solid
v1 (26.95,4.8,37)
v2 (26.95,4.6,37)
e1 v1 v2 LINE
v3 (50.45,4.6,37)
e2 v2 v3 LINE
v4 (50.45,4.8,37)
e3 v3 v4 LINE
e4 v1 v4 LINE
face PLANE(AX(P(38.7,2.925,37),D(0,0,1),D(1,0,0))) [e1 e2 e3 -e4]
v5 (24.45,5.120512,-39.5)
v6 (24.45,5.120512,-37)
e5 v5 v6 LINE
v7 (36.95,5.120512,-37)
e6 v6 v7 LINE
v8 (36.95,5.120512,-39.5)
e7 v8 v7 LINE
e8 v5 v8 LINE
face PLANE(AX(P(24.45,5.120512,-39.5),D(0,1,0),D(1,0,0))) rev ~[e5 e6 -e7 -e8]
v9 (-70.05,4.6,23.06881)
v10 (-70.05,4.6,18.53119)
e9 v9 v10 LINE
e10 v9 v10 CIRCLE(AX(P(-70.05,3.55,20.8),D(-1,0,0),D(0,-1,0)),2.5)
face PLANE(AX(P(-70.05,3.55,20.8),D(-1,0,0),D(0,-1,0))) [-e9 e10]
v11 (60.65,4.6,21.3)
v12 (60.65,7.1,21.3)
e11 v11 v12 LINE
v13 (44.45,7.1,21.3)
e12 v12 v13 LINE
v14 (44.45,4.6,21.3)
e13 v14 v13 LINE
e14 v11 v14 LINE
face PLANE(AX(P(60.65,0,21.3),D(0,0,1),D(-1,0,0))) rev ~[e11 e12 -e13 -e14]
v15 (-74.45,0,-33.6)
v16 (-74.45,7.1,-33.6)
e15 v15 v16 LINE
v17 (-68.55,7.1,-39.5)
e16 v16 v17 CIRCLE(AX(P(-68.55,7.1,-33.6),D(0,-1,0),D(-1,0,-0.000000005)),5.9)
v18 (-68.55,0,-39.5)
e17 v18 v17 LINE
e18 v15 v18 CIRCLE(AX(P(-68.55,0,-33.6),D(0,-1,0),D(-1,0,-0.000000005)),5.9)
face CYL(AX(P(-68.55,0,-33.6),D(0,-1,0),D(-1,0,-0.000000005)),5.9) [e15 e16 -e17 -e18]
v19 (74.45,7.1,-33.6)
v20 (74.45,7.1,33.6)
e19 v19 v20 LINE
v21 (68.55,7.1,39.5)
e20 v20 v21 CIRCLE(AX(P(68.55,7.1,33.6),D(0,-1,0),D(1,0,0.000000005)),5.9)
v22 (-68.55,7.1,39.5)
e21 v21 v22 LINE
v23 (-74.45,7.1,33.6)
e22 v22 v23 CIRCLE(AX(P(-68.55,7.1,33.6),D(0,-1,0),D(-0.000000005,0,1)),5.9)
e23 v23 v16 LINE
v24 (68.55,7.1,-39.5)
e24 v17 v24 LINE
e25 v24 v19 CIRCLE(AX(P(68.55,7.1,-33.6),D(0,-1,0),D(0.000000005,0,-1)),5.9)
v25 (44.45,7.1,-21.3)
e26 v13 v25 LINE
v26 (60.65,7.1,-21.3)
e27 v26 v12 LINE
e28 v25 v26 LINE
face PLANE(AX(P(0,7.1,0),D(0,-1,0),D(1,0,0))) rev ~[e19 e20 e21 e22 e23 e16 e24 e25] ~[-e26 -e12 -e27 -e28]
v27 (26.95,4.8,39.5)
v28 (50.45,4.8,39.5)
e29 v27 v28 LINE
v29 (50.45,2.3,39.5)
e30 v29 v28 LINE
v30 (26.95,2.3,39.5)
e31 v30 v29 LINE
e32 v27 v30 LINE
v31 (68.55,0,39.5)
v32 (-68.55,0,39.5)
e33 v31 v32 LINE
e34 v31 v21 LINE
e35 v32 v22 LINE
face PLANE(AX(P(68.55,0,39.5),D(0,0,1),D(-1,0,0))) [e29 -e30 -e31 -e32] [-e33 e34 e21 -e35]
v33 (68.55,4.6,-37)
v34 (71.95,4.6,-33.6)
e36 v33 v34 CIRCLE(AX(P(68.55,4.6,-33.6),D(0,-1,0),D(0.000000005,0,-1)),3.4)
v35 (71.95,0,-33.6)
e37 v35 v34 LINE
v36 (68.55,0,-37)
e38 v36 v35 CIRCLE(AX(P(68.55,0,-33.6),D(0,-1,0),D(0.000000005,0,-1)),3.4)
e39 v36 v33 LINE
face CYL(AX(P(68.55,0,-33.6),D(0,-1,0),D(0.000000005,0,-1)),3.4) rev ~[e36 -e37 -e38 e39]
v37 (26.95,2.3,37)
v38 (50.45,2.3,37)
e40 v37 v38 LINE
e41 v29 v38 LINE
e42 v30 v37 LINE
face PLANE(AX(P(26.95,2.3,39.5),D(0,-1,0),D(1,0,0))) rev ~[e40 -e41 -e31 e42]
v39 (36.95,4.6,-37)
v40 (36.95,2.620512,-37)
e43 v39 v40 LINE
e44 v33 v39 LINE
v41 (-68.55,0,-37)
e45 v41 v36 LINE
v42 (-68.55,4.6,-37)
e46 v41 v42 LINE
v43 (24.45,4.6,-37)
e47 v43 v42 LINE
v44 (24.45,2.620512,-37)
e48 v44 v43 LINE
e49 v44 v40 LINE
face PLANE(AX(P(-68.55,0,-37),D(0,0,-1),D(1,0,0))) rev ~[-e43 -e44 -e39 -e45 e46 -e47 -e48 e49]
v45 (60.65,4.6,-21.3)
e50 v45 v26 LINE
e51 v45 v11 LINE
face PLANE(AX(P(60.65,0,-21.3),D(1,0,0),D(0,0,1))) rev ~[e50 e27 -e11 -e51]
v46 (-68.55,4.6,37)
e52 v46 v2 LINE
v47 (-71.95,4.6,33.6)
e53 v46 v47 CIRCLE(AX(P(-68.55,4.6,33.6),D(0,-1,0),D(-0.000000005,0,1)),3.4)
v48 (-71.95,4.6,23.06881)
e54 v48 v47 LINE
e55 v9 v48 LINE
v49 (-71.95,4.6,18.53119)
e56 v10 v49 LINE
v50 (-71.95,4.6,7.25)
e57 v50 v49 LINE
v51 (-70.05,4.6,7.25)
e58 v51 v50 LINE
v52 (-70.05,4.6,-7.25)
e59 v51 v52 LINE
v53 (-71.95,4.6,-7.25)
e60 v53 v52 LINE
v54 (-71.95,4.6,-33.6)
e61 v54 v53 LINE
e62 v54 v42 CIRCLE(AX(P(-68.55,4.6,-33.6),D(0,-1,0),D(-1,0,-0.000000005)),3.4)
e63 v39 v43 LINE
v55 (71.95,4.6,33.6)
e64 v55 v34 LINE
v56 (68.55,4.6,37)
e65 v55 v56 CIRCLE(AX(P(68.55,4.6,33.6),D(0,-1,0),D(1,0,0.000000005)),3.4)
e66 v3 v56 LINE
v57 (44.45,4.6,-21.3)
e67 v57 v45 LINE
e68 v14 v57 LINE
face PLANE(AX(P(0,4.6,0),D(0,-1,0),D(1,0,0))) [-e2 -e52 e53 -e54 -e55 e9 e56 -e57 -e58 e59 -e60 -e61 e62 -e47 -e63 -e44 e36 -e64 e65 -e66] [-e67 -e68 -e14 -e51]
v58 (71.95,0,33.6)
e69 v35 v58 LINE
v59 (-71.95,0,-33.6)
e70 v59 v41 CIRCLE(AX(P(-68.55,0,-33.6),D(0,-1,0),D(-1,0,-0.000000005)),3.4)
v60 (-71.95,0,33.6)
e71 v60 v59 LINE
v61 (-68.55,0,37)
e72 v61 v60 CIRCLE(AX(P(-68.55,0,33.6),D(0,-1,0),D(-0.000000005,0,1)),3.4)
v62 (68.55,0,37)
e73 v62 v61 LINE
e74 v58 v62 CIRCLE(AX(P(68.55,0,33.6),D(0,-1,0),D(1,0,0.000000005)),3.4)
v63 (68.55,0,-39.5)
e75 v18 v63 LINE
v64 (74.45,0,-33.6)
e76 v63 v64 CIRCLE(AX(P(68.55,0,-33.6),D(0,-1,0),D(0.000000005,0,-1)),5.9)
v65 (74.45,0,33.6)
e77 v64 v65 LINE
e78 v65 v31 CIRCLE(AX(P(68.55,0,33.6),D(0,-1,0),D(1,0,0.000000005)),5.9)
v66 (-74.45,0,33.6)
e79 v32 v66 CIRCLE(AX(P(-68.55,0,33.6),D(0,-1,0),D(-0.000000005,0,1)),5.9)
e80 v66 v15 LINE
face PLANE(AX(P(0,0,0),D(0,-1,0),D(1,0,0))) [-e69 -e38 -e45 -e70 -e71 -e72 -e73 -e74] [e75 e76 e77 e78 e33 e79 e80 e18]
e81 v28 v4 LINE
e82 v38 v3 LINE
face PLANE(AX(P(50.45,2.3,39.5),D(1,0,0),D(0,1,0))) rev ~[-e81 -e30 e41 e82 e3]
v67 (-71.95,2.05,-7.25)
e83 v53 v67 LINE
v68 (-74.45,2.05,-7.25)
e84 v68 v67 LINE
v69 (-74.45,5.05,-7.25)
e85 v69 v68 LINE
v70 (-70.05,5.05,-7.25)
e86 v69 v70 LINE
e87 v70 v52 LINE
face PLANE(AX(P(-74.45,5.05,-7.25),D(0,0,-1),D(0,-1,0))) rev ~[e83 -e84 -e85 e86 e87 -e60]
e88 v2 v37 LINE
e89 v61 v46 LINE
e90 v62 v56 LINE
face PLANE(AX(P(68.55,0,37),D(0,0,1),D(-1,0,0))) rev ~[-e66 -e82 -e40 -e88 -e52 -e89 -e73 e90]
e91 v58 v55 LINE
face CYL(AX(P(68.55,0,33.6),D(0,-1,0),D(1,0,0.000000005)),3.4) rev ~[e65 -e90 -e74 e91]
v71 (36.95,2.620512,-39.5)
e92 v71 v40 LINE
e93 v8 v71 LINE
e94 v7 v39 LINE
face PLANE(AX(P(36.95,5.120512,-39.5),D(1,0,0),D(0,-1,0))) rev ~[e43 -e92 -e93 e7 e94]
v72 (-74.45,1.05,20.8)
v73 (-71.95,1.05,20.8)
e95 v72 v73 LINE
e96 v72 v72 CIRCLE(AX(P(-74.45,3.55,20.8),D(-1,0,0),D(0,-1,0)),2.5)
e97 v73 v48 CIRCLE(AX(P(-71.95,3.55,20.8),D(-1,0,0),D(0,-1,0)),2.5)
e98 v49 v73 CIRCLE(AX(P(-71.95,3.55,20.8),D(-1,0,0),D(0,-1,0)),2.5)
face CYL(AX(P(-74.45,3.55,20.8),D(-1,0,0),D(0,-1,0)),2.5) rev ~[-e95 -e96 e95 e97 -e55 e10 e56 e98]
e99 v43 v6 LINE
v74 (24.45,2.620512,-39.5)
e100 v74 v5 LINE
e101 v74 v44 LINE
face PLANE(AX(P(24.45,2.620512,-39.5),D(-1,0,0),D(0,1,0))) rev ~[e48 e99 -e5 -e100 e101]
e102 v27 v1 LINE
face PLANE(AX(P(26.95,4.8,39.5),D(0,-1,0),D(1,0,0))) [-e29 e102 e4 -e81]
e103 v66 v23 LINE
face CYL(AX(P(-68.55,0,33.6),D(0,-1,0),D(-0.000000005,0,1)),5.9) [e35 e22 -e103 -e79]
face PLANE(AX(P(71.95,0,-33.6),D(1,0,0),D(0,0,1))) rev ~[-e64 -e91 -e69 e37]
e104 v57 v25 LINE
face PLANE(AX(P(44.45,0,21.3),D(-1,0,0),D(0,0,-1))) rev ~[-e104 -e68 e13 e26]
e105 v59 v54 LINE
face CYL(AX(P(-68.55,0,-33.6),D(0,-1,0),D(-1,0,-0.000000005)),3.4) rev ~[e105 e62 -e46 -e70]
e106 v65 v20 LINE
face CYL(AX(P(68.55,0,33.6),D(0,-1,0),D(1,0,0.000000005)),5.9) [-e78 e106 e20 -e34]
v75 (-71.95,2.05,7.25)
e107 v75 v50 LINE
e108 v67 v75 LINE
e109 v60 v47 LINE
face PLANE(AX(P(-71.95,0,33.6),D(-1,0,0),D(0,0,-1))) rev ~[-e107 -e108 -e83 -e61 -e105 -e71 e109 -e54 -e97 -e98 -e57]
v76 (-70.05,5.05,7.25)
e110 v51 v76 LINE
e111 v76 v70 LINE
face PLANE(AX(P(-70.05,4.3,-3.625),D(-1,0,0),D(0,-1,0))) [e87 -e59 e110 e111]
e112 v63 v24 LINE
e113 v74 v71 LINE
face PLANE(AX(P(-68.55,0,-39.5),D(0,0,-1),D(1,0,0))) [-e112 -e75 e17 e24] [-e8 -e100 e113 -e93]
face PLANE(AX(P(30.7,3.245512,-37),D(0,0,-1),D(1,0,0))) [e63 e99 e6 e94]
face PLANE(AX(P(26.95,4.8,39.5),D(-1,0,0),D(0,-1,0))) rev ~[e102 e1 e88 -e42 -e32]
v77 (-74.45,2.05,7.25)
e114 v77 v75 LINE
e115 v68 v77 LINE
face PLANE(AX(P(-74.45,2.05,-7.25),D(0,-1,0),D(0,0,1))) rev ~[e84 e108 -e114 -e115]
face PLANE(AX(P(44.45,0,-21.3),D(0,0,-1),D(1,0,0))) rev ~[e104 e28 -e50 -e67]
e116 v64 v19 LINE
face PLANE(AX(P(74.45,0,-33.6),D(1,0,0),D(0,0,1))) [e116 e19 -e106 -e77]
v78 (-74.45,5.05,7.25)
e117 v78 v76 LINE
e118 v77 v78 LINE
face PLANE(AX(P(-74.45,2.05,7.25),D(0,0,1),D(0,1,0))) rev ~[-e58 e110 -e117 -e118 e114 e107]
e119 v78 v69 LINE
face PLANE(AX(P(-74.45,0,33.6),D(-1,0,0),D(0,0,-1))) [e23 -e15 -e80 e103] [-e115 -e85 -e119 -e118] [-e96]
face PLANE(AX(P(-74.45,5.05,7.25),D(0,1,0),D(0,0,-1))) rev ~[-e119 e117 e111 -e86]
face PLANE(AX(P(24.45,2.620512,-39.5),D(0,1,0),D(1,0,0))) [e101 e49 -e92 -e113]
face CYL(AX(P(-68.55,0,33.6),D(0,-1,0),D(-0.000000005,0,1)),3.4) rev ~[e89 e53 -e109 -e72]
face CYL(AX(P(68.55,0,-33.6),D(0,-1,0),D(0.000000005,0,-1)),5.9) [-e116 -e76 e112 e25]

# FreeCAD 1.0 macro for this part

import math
import FreeCAD as App
import Part
import Sketcher


def faces_at(feature, points):
    """Names of the faces that lie closest to the given points."""
    faces = feature.Shape.Faces
    near = lambda p: min(range(len(faces)), key=lambda i: faces[i].distToShape(Part.Vertex(*p))[0])
    return sorted({f"Face{near(p) + 1}" for p in points})


def add_polygon(sketch, points):
    """Adds a closed chain of lines whose ends are joined by coincident constraints."""
    first, n = sketch.GeometryCount, len(points)
    for a, b in zip(points, points[1:] + points[:1]):
        sketch.addGeometry(Part.LineSegment(App.Vector(*a, 0), App.Vector(*b, 0)), False)
    for i in range(n):
        sketch.addConstraint(Sketcher.Constraint("Coincident", first + i, 2, first + (i + 1) % n, 1))

doc = App.newDocument("Part")
body = doc.addObject("PartDesign::Body", "Body")

sketch1 = doc.addObject("Sketcher::SketchObject", "Sketch")
body.addObject(sketch1)
sketch1.AttachmentSupport = (doc.XZ_Plane, [""])
sketch1.MapMode = "FlatFace"
sketch1.addGeometry([
    Part.LineSegment(App.Vector(69, 40, 0), App.Vector(-69, 40, 0)),
    Part.ArcOfCircle(Part.Circle(App.Vector(-69, 34, 0), App.Vector(0, 0, 1), 6), math.radians(90), math.radians(180)),
    Part.LineSegment(App.Vector(-74, 34, 0), App.Vector(-74, -34, 0)),
    Part.ArcOfCircle(Part.Circle(App.Vector(-69, -34, 0), App.Vector(0, 0, 1), 6), math.radians(-180), math.radians(-90)),
    Part.LineSegment(App.Vector(-69, -40, 0), App.Vector(69, -40, 0)),
    Part.ArcOfCircle(Part.Circle(App.Vector(69, -34, 0), App.Vector(0, 0, 1), 6), math.radians(-90), math.radians(0)),
    Part.LineSegment(App.Vector(74, -34, 0), App.Vector(74, 34, 0)),
    Part.ArcOfCircle(Part.Circle(App.Vector(69, 34, 0), App.Vector(0, 0, 1), 6), math.radians(0), math.radians(90)),
], False)
sketch1.addConstraint([
    Sketcher.Constraint("Tangent", 0, 2, 1, 1),
    Sketcher.Constraint("Tangent", 1, 2, 2, 1),
    Sketcher.Constraint("Tangent", 2, 2, 3, 1),
    Sketcher.Constraint("Tangent", 3, 2, 4, 1),
    Sketcher.Constraint("Tangent", 4, 2, 5, 1),
    Sketcher.Constraint("Tangent", 5, 2, 6, 1),
    Sketcher.Constraint("Tangent", 6, 2, 7, 1),
    Sketcher.Constraint("Tangent", 7, 2, 0, 1),
    Sketcher.Constraint("Horizontal", 0),
    Sketcher.Constraint("Vertical", 2),
    Sketcher.Constraint("Horizontal", 4),
    Sketcher.Constraint("Vertical", 6),
    Sketcher.Constraint("Equal", 1, 3),
    Sketcher.Constraint("Equal", 3, 5),
    Sketcher.Constraint("Equal", 5, 7),
    Sketcher.Constraint("Symmetric", 1, 3, 5, 3, -1, 1),
    Sketcher.Constraint("Radius", 1, 5.9),
    Sketcher.Constraint("DistanceX", 0, 2, 0, 1, 137.1),
    Sketcher.Constraint("DistanceY", 2, 2, 2, 1, 67.2),
])
pad1 = doc.addObject("PartDesign::Pad", "Pad")
body.addObject(pad1)
pad1.Profile = sketch1
pad1.Length = 7.1
pad1.Reversed = True
doc.recompute()

thickness = doc.addObject("PartDesign::Thickness", "Thickness")
body.addObject(thickness)
thickness.Base = (pad1, faces_at(pad1, [(0, 0, 0)]))
thickness.Value = 2.5
thickness.Reversed = True
thickness.Join = "Arc"

sketch2 = doc.addObject("Sketcher::SketchObject", "Sketch001")
body.addObject(sketch2)
sketch2.AttachmentSupport = (doc.XZ_Plane, [""])
sketch2.MapMode = "FlatFace"
add_polygon(sketch2, [(61, 21), (44, 21), (44, -21), (61, -21)])
sketch2.addConstraint([
    Sketcher.Constraint("Horizontal", 0),
    Sketcher.Constraint("Vertical", 1),
    Sketcher.Constraint("Horizontal", 2),
    Sketcher.Constraint("Vertical", 3),
    Sketcher.Constraint("DistanceX", 0, 2, 0, 1, 16.2),
    Sketcher.Constraint("DistanceY", 1, 2, 1, 1, 42.6),
    Sketcher.Constraint("DistanceY", -1, 1, 0, 2, 21.3),
    Sketcher.Constraint("DistanceX", -1, 1, 0, 2, 44.45),
])
pocket1 = doc.addObject("PartDesign::Pocket", "Pocket")
body.addObject(pocket1)
pocket1.Profile = sketch2
pocket1.Length = 25

sketch3 = doc.addObject("Sketcher::SketchObject", "Sketch002")
body.addObject(sketch3)
sketch3.AttachmentSupport = (doc.XY_Plane, [""])
sketch3.MapMode = "FlatFace"
sketch3.AttachmentOffset = App.Placement(App.Vector(0, 0, -39.5), App.Rotation())
add_polygon(sketch3, [(24.4, 2.6), (24.4, 5.1), (37, 5.1), (37, 2.6)])
sketch3.addConstraint([
    Sketcher.Constraint("Vertical", 0),
    Sketcher.Constraint("Horizontal", 1),
    Sketcher.Constraint("Vertical", 2),
    Sketcher.Constraint("Horizontal", 3),
    Sketcher.Constraint("DistanceX", 1, 1, 1, 2, 12.5),
    Sketcher.Constraint("DistanceY", 0, 1, 0, 2, 2.5),
    Sketcher.Constraint("DistanceX", -1, 1, 0, 2, 24.45),
    Sketcher.Constraint("DistanceY", -1, 1, 0, 2, 5.120512),
])
pocket2 = doc.addObject("PartDesign::Pocket", "Pocket001")
body.addObject(pocket2)
pocket2.Profile = sketch3
pocket2.Length = 2.5
pocket2.Reversed = True

sketch4 = doc.addObject("Sketcher::SketchObject", "Sketch003")
body.addObject(sketch4)
sketch4.AttachmentSupport = (doc.XY_Plane, [""])
sketch4.MapMode = "FlatFace"
sketch4.AttachmentOffset = App.Placement(App.Vector(0, 0, 39.5), App.Rotation())
add_polygon(sketch4, [(26.9, 2.3), (50.5, 2.3), (50.5, 4.8), (26.9, 4.8)])
sketch4.addConstraint([
    Sketcher.Constraint("Horizontal", 0),
    Sketcher.Constraint("Vertical", 1),
    Sketcher.Constraint("Horizontal", 2),
    Sketcher.Constraint("Vertical", 3),
    Sketcher.Constraint("DistanceX", 0, 1, 0, 2, 23.5),
    Sketcher.Constraint("DistanceY", 1, 1, 1, 2, 2.5),
    Sketcher.Constraint("DistanceY", -1, 1, 0, 2, 2.3),
    Sketcher.Constraint("DistanceX", -1, 1, 0, 2, 50.45),
])
pocket3 = doc.addObject("PartDesign::Pocket", "Pocket002")
body.addObject(pocket3)
pocket3.Profile = sketch4
pocket3.Length = 2.5

sketch5 = doc.addObject("Sketcher::SketchObject", "Sketch004")
body.addObject(sketch5)
sketch5.AttachmentSupport = (doc.YZ_Plane, [""])
sketch5.MapMode = "FlatFace"
sketch5.AttachmentOffset = App.Placement(App.Vector(0, 0, -74.45), App.Rotation())
add_polygon(sketch5, [(5, -7.2), (2, -7.2), (2, 7.2), (5, 7.2)])
sketch5.addGeometry(Part.Circle(App.Vector(3.5, 20.8, 0), App.Vector(0, 0, 1), 2.5), False)
sketch5.addConstraint([
    Sketcher.Constraint("Horizontal", 0),
    Sketcher.Constraint("Vertical", 1),
    Sketcher.Constraint("Horizontal", 2),
    Sketcher.Constraint("Vertical", 3),
    Sketcher.Constraint("Diameter", 4, 5.0),
    Sketcher.Constraint("DistanceX", 0, 2, 0, 1, 3.0),
    Sketcher.Constraint("DistanceY", 1, 1, 1, 2, 14.5),
    Sketcher.Constraint("DistanceY", -1, 1, 4, 3, 20.8),
    Sketcher.Constraint("DistanceX", 0, 2, 4, 3, 1.5),
    Sketcher.Constraint("DistanceX", -1, 1, 4, 3, 3.55),
    Sketcher.Constraint("DistanceY", 0, 2, -1, 1, 7.25),
])
pocket4 = doc.addObject("PartDesign::Pocket", "Pocket003")
body.addObject(pocket4)
pocket4.Profile = sketch5
pocket4.Length = 4.4
pocket4.Reversed = True

doc.recompute()
